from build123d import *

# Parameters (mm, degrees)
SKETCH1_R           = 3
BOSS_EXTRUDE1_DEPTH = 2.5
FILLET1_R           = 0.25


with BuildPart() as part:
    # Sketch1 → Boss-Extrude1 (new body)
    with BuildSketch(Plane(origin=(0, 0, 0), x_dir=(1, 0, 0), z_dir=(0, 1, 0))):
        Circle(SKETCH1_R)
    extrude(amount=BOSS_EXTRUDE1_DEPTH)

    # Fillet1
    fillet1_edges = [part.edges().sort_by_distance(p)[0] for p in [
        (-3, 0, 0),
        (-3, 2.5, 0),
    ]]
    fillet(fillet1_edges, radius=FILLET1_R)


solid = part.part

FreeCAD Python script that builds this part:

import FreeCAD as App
import Part
import Sketcher

V = App.Vector
Q = App.Units.Quantity


def edges_at(feature, points):
    """Names of the edges that pass closest to the given points."""
    edges = feature.Shape.Edges
    near = lambda p: min(range(len(edges)), key=lambda i: edges[i].distToShape(Part.Vertex(*p))[0])
    return sorted({f"Edge{near(p) + 1}" for p in points})

doc = App.newDocument("Part")
body = doc.addObject("PartDesign::Body", "Body")

# Sketch on XZ plane
sketch1 = body.newObject("Sketcher::SketchObject", "Sketch")
sketch1.AttachmentSupport = (doc.getObject("XZ_Plane"), [""])
sketch1.MapMode = "FlatFace"
sketch1.addGeometry(Part.Circle(V(0, 0, 0), V(0, 0, 1), 3), False)
sketch1.addConstraint([
    Sketcher.Constraint("Coincident", 0, 3, -1, 1),
    Sketcher.Constraint("Diameter", 0, Q("6 mm")),
])
pad1 = body.newObject("PartDesign::Pad", "Pad")
pad1.Profile = sketch1
pad1.Length = 2.5
pad1.Reversed = True
doc.recompute()

fillet = body.newObject("PartDesign::Fillet", "Fillet")
fillet.Base = (pad1, edges_at(pad1, [(-3, 0, 0), (-3, 2.5, 0)]))
fillet.Radius = 0.25

doc.recompute()
